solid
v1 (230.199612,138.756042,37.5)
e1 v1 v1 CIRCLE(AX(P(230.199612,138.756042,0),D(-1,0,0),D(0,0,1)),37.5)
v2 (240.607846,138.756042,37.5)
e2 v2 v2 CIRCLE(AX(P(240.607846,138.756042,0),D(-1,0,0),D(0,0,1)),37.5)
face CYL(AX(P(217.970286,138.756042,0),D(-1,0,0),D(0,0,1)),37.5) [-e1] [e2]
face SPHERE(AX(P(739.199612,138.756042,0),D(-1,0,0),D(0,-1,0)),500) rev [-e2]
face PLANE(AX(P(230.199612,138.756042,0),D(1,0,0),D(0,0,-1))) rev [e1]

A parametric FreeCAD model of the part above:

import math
import FreeCAD as App
import Part
import Sketcher

doc = App.newDocument("Part")
params = doc.addObject("Spreadsheet::Sheet", "Params")
for row, (alias, value) in enumerate([
    ("sketch1_radius", "500 mm"),
    ("sketch1_width", "9.000001 mm"),
    ("sketch1_height", "37.5 mm"),
    ("revolution_angle", "360 deg"),
], start=1):
    params.set(f"A{row}", alias)
    params.set(f"B{row}", "=" + value)
    params.setAlias(f"B{row}", alias)

body = doc.addObject("PartDesign::Body", "Body")

sketch1 = body.newObject("Sketcher::SketchObject", "Sketch")
sketch1.AttachmentSupport = (doc.getObject("XY_Plane"), [""])
sketch1.MapMode = "FlatFace"
sketch1.addGeometry([
    Part.LineSegment(App.Vector(230.199612, 176.256042, 0), App.Vector(230.199612, 138.756042, 0)),
    Part.LineSegment(App.Vector(230.199612, 138.756042, 0), App.Vector(239.199612, 138.756042, 0)),
    Part.ArcOfCircle(Part.Circle(App.Vector(739.199612, 138.756042, 0), App.Vector(0, 0, 1), 500), math.radians(175.698778), math.radians(180)),
    Part.LineSegment(App.Vector(240.607846, 176.256042, 0), App.Vector(230.199612, 176.256042, 0)),
], False)
sketch1.addGeometry(Part.LineSegment(App.Vector(230.199612, 138.756042, 0), App.Vector(739.199612, 138.756042, 0)), True)
sketch1.addConstraint([
    Sketcher.Constraint("Coincident", 0, 2, 1, 1),
    Sketcher.Constraint("Coincident", 1, 2, 2, 2),
    Sketcher.Constraint("Coincident", 2, 1, 3, 1),
    Sketcher.Constraint("Coincident", 3, 2, 0, 1),
    Sketcher.Constraint("Vertical", 0),
    Sketcher.Constraint("Horizontal", 1),
    Sketcher.Constraint("Horizontal", 3),
    Sketcher.Constraint("Horizontal", 4),
    Sketcher.Constraint("Coincident", 4, 1, 0, 2),
    Sketcher.Constraint("Coincident", 4, 2, 2, 3),
    Sketcher.Constraint("Radius", 2, 500.0),
    Sketcher.Constraint("DistanceX", 1, 1, 1, 2, 9.000001),
    Sketcher.Constraint("DistanceY", 0, 2, 0, 1, 37.5),
    Sketcher.Constraint("DistanceX", -1, 1, 0, 2, 230.199612),
    Sketcher.Constraint("DistanceY", -1, 1, 2, 3, 138.756042),
])
sketch1.setExpression("Constraints[10]", "Params.sketch1_radius")
sketch1.setExpression("Constraints[11]", "Params.sketch1_width")
sketch1.setExpression("Constraints[12]", "Params.sketch1_height")
revolution = body.newObject("PartDesign::Revolution", "Revolution")
revolution.Profile = sketch1
revolution.ReferenceAxis = (sketch1, ["Axis0"])
revolution.setExpression("Angle", "Params.revolution_angle")

doc.recompute()
